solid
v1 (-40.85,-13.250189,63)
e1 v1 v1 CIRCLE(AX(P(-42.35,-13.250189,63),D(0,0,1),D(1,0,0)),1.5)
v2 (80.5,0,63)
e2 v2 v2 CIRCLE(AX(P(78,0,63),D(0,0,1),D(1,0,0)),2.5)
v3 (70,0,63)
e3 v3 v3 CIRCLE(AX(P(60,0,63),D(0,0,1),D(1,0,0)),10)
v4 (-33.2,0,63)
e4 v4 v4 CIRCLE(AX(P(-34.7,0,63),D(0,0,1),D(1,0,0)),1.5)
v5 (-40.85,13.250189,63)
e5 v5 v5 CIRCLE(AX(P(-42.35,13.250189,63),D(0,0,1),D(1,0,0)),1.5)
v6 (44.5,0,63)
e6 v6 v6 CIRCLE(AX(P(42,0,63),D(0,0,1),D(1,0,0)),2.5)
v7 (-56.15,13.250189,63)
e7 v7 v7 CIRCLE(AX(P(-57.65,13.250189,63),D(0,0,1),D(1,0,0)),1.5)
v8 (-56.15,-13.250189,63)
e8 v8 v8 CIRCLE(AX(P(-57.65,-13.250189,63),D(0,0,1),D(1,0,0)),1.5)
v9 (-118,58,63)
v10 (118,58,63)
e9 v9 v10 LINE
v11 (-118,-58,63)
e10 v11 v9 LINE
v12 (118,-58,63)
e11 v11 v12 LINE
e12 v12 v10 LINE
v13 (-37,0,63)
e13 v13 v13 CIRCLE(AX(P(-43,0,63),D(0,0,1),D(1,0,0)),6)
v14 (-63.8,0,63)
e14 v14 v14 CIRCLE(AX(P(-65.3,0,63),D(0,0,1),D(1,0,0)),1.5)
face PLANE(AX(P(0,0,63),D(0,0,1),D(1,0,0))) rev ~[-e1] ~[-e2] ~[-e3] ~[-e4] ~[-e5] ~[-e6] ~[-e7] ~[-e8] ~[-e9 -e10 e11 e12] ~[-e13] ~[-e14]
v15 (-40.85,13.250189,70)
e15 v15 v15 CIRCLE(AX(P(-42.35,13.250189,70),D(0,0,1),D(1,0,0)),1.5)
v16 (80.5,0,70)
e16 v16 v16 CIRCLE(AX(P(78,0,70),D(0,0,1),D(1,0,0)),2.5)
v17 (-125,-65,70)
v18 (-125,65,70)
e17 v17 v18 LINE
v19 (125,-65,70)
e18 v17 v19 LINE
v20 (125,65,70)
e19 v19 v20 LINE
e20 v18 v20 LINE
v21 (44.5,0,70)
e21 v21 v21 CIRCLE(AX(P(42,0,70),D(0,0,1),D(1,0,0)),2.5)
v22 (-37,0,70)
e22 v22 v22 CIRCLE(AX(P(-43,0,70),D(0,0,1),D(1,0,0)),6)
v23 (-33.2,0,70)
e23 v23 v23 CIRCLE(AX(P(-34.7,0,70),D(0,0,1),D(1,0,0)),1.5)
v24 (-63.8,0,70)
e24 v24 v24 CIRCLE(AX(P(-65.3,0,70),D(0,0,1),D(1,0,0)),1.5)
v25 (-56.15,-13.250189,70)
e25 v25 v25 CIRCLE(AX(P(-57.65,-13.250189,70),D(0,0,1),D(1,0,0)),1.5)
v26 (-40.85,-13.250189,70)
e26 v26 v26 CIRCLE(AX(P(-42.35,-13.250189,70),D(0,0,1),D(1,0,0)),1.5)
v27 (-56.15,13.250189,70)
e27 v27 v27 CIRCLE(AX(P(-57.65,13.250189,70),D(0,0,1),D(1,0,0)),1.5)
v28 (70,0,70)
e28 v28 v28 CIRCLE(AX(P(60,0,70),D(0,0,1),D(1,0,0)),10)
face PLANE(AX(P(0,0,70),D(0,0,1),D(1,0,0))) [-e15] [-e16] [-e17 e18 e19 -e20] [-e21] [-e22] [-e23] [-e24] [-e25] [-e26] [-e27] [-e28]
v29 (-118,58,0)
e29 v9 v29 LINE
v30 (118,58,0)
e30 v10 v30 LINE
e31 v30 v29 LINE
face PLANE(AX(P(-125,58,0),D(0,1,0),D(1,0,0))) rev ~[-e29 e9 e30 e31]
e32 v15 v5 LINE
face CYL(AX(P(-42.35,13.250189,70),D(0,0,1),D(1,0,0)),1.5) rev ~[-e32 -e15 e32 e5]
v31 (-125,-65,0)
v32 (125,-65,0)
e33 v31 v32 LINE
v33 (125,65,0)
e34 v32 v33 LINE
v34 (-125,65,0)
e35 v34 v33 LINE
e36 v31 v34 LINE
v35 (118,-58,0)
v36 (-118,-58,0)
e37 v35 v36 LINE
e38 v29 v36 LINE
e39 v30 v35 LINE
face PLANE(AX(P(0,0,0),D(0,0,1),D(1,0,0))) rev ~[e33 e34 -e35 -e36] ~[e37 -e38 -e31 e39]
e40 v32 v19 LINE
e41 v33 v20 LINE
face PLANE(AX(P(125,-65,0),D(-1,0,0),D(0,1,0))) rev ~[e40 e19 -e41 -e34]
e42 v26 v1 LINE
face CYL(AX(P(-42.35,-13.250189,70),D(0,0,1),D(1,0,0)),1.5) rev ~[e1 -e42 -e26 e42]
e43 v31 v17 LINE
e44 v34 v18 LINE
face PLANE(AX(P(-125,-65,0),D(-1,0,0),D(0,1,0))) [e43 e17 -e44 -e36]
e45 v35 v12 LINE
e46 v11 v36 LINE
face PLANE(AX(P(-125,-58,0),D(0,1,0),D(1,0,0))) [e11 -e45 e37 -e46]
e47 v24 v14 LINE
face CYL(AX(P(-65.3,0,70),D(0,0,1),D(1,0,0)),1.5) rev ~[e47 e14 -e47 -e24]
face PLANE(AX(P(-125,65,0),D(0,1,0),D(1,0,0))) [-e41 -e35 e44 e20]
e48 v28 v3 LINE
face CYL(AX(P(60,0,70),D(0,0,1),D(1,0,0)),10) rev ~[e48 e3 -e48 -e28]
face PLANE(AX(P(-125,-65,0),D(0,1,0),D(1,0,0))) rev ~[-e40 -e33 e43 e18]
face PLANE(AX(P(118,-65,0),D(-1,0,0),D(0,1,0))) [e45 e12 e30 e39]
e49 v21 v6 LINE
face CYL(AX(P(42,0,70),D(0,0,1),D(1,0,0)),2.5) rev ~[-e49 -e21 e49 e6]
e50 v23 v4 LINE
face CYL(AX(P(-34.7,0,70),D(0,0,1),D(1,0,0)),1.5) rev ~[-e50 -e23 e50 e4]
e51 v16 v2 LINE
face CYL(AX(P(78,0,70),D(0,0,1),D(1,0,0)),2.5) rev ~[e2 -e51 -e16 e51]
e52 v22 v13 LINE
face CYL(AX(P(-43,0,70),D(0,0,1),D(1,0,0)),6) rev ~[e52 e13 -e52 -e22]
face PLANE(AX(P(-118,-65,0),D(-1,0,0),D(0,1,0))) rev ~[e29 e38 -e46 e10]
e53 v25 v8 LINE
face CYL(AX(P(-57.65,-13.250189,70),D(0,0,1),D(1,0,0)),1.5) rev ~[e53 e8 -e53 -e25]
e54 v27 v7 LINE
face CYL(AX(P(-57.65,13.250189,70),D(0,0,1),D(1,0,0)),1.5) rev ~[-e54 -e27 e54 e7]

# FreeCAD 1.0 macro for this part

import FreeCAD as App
import Part
import Sketcher
Q = App.Units.Quantity


def faces_at(feature, points):
    """Names of the faces that lie closest to the given points."""
    faces = feature.Shape.Faces
    near = lambda p: min(range(len(faces)), key=lambda i: faces[i].distToShape(Part.Vertex(*p))[0])
    return sorted({f"Face{near(p) + 1}" for p in points})

doc = App.newDocument("Part")
body = doc.addObject("PartDesign::Body", "Body")

sketch1 = doc.addObject("Sketcher::SketchObject", "Sketch")
body.addObject(sketch1)
sketch1.AttachmentSupport = (doc.XY_Plane, [""])
sketch1.MapMode = "FlatFace"
sketch1.addGeometry([
    Part.LineSegment(App.Vector(-125, 65, 0), App.Vector(-125, -65, 0)),
    Part.LineSegment(App.Vector(-125, -65, 0), App.Vector(125, -65, 0)),
    Part.LineSegment(App.Vector(125, -65, 0), App.Vector(125, 65, 0)),
    Part.LineSegment(App.Vector(125, 65, 0), App.Vector(-125, 65, 0)),
], False)
sketch1.addConstraint([
    Sketcher.Constraint("Coincident", 0, 2, 1, 1),
    Sketcher.Constraint("Coincident", 1, 2, 2, 1),
    Sketcher.Constraint("Coincident", 2, 2, 3, 1),
    Sketcher.Constraint("Coincident", 3, 2, 0, 1),
    Sketcher.Constraint("Vertical", 0),
    Sketcher.Constraint("Horizontal", 1),
    Sketcher.Constraint("Vertical", 2),
    Sketcher.Constraint("Horizontal", 3),
    Sketcher.Constraint("Symmetric", 0, 2, 2, 2, -1, 1),
    Sketcher.Constraint("DistanceX", 1, 1, 1, 2, Q("250 mm")),
    Sketcher.Constraint("DistanceY", 0, 2, 0, 1, Q("130 mm")),
])
pad1 = doc.addObject("PartDesign::Pad", "Pad")
body.addObject(pad1)
pad1.Profile = sketch1
pad1.Length = 70
doc.recompute()

thickness = doc.addObject("PartDesign::Thickness", "Thickness")
body.addObject(thickness)
thickness.Base = (pad1, faces_at(pad1, [(0, 0, 0)]))
thickness.Value = 7
thickness.Reversed = True
thickness.Join = "Intersection"

sketch2 = doc.addObject("Sketcher::SketchObject", "Sketch001")
body.addObject(sketch2)
sketch2.AttachmentSupport = (doc.XY_Plane, [""])
sketch2.MapMode = "FlatFace"
sketch2.AttachmentOffset = App.Placement(App.Vector(0, 0, 70), App.Rotation())
sketch2.addGeometry([
    Part.Circle(App.Vector(60, 0, 0), App.Vector(0, 0, 1), 10),
    Part.Circle(App.Vector(42, 0, 0), App.Vector(0, 0, 1), 2.5),
    Part.Circle(App.Vector(78, 0, 0), App.Vector(0, 0, 1), 2.5),
    Part.Circle(App.Vector(-34.7, 0, 0), App.Vector(0, 0, 1), 1.5),
    Part.Circle(App.Vector(-42.35, -13.250189, 0), App.Vector(0, 0, 1), 1.5),
    Part.Circle(App.Vector(-57.65, -13.250189, 0), App.Vector(0, 0, 1), 1.5),
    Part.Circle(App.Vector(-65.3, 0, 0), App.Vector(0, 0, 1), 1.5),
    Part.Circle(App.Vector(-57.65, 13.250189, 0), App.Vector(0, 0, 1), 1.5),
    Part.Circle(App.Vector(-42.35, 13.250189, 0), App.Vector(0, 0, 1), 1.5),
    Part.Circle(App.Vector(-43, 0, 0), App.Vector(0, 0, 1), 6),
], False)
sketch2.addConstraint([
    Sketcher.Constraint("Equal", 1, 2),
    Sketcher.Constraint("Equal", 3, 4),
    Sketcher.Constraint("Equal", 4, 5),
    Sketcher.Constraint("Equal", 5, 6),
    Sketcher.Constraint("Equal", 6, 7),
    Sketcher.Constraint("Equal", 7, 8),
    Sketcher.Constraint("Symmetric", 5, 3, 7, 3, -1),
    Sketcher.Constraint("Symmetric", 4, 3, 8, 3, -1),
    Sketcher.Constraint("PointOnObject", 0, 3, -1),
    Sketcher.Constraint("PointOnObject", 1, 3, -1),
    Sketcher.Constraint("PointOnObject", 2, 3, -1),
    Sketcher.Constraint("PointOnObject", 3, 3, -1),
    Sketcher.Constraint("PointOnObject", 6, 3, -1),
    Sketcher.Constraint("PointOnObject", 9, 3, -1),
    Sketcher.Constraint("Horizontal", 4, 3, 5, 3),
    Sketcher.Constraint("Diameter", 0, Q("20 mm")),
    Sketcher.Constraint("Diameter", 1, Q("5 mm")),
    Sketcher.Constraint("Diameter", 3, Q("3 mm")),
    Sketcher.Constraint("Diameter", 9, Q("12 mm")),
    Sketcher.Constraint("DistanceX", -1, 1, 0, 3, Q("60 mm")),
    Sketcher.Constraint("DistanceX", -1, 1, 1, 3, Q("42 mm")),
    Sketcher.Constraint("DistanceX", -1, 1, 2, 3, Q("78 mm")),
    Sketcher.Constraint("DistanceX", 9, 3, -1, 1, Q("43 mm")),
    Sketcher.Constraint("DistanceX", 3, 3, -1, 1, Q("34.7 mm")),
    Sketcher.Constraint("DistanceX", 6, 3, -1, 1, Q("65.3 mm")),
    Sketcher.Constraint("DistanceX", 5, 3, 4, 3, Q("15.3 mm")),
    Sketcher.Constraint("DistanceX", 4, 3, -1, 1, Q("42.35 mm")),
    Sketcher.Constraint("DistanceY", 4, 3, -1, 1, Q("13.250189 mm")),
])
pocket1 = doc.addObject("PartDesign::Pocket", "Pocket")
body.addObject(pocket1)
pocket1.Profile = sketch2
pocket1.Length = 90

doc.recompute()
